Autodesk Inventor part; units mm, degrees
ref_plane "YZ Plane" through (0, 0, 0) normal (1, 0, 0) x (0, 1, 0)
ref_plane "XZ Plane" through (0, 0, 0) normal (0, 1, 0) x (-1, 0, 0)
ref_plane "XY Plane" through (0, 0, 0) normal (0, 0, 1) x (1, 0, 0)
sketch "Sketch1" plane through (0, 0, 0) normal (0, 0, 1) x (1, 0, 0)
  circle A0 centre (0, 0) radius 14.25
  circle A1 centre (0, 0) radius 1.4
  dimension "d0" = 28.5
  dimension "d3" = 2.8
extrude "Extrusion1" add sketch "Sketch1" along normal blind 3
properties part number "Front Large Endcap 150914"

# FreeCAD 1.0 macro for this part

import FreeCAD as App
import Part
import Sketcher
from FreeCAD import Vector
Q = App.Units.Quantity

doc = App.newDocument("Part")
body = doc.addObject("PartDesign::Body", "Body")

# Sketch on XY plane
sketch1 = body.newObject("Sketcher::SketchObject", "Sketch")
sketch1.AttachmentSupport = (doc.getObject("XY_Plane"), [""])
sketch1.MapMode = "FlatFace"
sketch1.addGeometry([
    Part.Circle(Vector(0, 0, 0), Vector(0, 0, 1), 14.25),
    Part.Circle(Vector(0, 0, 0), Vector(0, 0, 1), 1.4),
], False)
sketch1.addConstraint([
    Sketcher.Constraint("Coincident", 0, 3, -1, 1),
    Sketcher.Constraint("Coincident", 1, 3, -1, 1),
    Sketcher.Constraint("Diameter", 0, Q("28.5 mm")),
    Sketcher.Constraint("Diameter", 1, Q("2.8 mm")),
])
pad1 = body.newObject("PartDesign::Pad", "Pad")
pad1.Profile = sketch1
pad1.Length = 3

doc.recompute()
